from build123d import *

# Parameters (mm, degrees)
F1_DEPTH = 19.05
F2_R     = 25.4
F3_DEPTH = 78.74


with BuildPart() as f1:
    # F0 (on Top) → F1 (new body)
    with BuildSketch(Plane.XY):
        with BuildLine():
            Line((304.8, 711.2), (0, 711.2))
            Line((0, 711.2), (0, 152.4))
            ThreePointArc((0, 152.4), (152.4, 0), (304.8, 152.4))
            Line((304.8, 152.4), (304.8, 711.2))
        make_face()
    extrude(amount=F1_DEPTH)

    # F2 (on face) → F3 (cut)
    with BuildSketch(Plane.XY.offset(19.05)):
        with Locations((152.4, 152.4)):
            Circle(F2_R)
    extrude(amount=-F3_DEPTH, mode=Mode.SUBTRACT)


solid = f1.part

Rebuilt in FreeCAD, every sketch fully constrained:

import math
import FreeCAD as App
import Part
import Sketcher
Q = App.Units.Quantity

doc = App.newDocument("Part")
params = doc.addObject("Spreadsheet::Sheet", "Params")
for row, (alias, value) in enumerate([
    ("sketch1_radius", "6 in"),
    ("sketch1_height", "22 in"),
    ("pad1_length", "0.75 in"),
    ("sketch2_diameter", "2 in"),
    ("pocket1_length", "3.1 in"),
], start=1):
    params.set(f"A{row}", alias)
    params.set(f"B{row}", "=" + value)
    params.setAlias(f"B{row}", alias)

body = doc.addObject("PartDesign::Body", "Body")

sketch1 = body.newObject("Sketcher::SketchObject", "Sketch")
sketch1.AttachmentSupport = (doc.getObject("XY_Plane"), [""])
sketch1.MapMode = "FlatFace"
sketch1.addGeometry([
    Part.LineSegment(App.Vector(305, 711, 0), App.Vector(0, 711, 0)),
    Part.LineSegment(App.Vector(0, 711, 0), App.Vector(0, 152, 0)),
    Part.ArcOfCircle(Part.Circle(App.Vector(152, 152, 0), App.Vector(0, 0, 1), 152), math.radians(180), math.radians(360)),
    Part.LineSegment(App.Vector(305, 152, 0), App.Vector(305, 711, 0)),
], False)
sketch1.addConstraint([
    Sketcher.Constraint("Coincident", 0, 2, 1, 1),
    Sketcher.Constraint("Tangent", 1, 2, 2, 1),
    Sketcher.Constraint("Tangent", 2, 2, 3, 1),
    Sketcher.Constraint("Coincident", 3, 2, 0, 1),
    Sketcher.Constraint("Horizontal", 0),
    Sketcher.Constraint("Vertical", 1),
    Sketcher.Constraint("Vertical", 3),
    Sketcher.Constraint("PointOnObject", 0, 2, -2),
    Sketcher.Constraint("Radius", 2, Q("6 in")),
    Sketcher.Constraint("DistanceY", 1, 2, 1, 1, Q("22 in")),
    Sketcher.Constraint("DistanceY", -1, 1, 2, 3, Q("6 in")),
])
sketch1.setExpression("Constraints[8]", "Params.sketch1_radius")
sketch1.setExpression("Constraints[9]", "Params.sketch1_height")
pad1 = body.newObject("PartDesign::Pad", "Pad")
pad1.Profile = sketch1
pad1.setExpression("Length", "Params.pad1_length")

sketch2 = body.newObject("Sketcher::SketchObject", "Sketch001")
sketch2.AttachmentSupport = (doc.getObject("XY_Plane"), [""])
sketch2.MapMode = "FlatFace"
sketch2.AttachmentOffset = App.Placement(App.Vector(0, 0, 0.75 * 25.4), App.Rotation())
sketch2.addGeometry(Part.Circle(App.Vector(152, 152, 0), App.Vector(0, 0, 1), 25), False)
sketch2.addConstraint([
    Sketcher.Constraint("Diameter", 0, Q("2 in")),
    Sketcher.Constraint("DistanceX", -1, 1, 0, 3, Q("6 in")),
    Sketcher.Constraint("DistanceY", -1, 1, 0, 3, Q("6 in")),
])
sketch2.setExpression("Constraints[0]", "Params.sketch2_diameter")
pocket1 = body.newObject("PartDesign::Pocket", "Pocket")
pocket1.Profile = sketch2
pocket1.setExpression("Length", "Params.pocket1_length")

doc.recompute()
